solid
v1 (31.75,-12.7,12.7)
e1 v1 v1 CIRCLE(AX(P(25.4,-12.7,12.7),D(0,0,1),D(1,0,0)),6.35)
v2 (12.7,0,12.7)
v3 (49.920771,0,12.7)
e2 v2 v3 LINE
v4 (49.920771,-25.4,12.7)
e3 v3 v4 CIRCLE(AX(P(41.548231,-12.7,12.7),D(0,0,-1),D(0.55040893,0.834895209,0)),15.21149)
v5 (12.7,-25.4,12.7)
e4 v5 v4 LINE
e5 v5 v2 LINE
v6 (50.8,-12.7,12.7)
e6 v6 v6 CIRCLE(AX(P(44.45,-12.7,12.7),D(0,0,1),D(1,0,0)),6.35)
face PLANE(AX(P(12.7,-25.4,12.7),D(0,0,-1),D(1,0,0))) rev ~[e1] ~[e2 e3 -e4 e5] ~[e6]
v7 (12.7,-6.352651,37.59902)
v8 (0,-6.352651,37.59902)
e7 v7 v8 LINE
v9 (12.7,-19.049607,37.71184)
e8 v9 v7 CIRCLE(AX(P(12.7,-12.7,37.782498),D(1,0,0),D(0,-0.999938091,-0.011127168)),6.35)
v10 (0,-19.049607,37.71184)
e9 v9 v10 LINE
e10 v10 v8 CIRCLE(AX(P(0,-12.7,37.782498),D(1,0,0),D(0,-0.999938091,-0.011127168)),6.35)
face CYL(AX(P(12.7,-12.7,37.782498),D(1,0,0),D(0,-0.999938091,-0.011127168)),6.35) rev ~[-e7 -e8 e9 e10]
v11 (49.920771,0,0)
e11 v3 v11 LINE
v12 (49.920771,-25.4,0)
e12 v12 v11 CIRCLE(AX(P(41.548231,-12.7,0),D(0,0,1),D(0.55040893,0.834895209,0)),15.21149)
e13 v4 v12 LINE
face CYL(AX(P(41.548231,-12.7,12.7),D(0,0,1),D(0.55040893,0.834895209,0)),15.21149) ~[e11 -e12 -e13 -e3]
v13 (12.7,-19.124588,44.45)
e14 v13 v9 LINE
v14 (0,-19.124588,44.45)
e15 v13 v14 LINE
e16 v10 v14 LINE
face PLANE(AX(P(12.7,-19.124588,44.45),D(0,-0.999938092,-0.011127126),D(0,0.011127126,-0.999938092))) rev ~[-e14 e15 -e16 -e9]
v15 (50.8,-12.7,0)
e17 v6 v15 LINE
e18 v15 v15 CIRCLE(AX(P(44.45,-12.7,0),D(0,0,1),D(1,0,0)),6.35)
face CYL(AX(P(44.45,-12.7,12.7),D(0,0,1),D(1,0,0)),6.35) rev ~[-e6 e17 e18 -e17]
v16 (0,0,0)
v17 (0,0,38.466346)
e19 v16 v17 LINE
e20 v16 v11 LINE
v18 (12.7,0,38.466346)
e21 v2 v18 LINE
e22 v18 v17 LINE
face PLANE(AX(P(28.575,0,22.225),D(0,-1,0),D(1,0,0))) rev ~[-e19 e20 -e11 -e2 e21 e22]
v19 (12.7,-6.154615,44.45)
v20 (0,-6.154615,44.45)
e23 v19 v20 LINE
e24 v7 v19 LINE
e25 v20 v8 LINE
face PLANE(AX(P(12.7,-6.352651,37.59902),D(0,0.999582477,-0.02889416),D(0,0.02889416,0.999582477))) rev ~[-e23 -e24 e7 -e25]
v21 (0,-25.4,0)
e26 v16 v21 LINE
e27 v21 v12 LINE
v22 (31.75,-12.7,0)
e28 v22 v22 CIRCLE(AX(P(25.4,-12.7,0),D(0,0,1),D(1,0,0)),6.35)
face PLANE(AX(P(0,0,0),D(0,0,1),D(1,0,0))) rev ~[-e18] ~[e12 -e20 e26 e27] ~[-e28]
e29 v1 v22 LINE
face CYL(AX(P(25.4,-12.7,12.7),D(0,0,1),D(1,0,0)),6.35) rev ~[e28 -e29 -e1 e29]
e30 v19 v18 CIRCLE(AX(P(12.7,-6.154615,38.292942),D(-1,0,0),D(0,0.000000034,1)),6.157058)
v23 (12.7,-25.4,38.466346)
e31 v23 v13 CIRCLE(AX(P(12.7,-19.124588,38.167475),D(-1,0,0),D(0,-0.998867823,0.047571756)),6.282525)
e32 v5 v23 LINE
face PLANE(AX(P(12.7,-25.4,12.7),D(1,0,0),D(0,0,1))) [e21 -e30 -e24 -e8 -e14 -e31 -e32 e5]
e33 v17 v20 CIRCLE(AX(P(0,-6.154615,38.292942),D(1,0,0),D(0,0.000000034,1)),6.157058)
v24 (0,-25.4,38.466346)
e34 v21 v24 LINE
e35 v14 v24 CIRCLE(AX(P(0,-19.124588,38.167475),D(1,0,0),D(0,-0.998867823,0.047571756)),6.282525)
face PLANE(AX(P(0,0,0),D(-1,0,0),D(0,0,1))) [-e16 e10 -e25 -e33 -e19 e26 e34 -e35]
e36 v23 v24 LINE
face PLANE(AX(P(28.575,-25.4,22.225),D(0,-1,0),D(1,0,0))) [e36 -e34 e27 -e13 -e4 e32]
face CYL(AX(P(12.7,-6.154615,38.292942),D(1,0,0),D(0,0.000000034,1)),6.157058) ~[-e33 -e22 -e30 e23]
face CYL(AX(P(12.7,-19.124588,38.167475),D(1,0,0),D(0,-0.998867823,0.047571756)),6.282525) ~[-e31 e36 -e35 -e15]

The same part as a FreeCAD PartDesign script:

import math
import FreeCAD as App
import Part
import Sketcher
from FreeCAD import Vector
Q = App.Units.Quantity


def add_polygon(sketch, points):
    """Adds a closed chain of lines whose ends are joined by coincident constraints."""
    first, n = sketch.GeometryCount, len(points)
    for a, b in zip(points, points[1:] + points[:1]):
        sketch.addGeometry(Part.LineSegment(App.Vector(*a, 0), App.Vector(*b, 0)), False)
    for i in range(n):
        sketch.addConstraint(Sketcher.Constraint("Coincident", first + i, 2, first + (i + 1) % n, 1))

doc = App.newDocument("Part")
params = doc.addObject("Spreadsheet::Sheet", "Params")
for row, (alias, value) in enumerate([
    ("sketch1_width", "2.25 in"),
    ("sketch1_height", "1.75 in"),
    ("pad1_length", "1 in"),
    ("sketch2_width", "1.75 in"),
    ("sketch2_height", "1.25 in"),
    ("pocket1_length", "1 in"),
    ("sketch3_radius", "0.25 in"),
    ("pocket2_length", "1 in"),
    ("pocket3_length", "1 in"),
    ("pocket4_length", "1 in"),
    ("sketch6_diameter", "0.5 in"),
    ("pocket5_length", "1 in"),
    ("sketch7_height", "1 in"),
    ("pocket6_length", "1 in"),
], start=1):
    params.set(f"A{row}", alias)
    params.set(f"B{row}", "=" + value)
    params.setAlias(f"B{row}", alias)

body = doc.addObject("PartDesign::Body", "Body")

sketch1 = body.newObject("Sketcher::SketchObject", "Sketch")
sketch1.AttachmentSupport = (doc.getObject("XZ_Plane"), [""])
sketch1.MapMode = "FlatFace"
add_polygon(sketch1, [(0, 44), (0, 0), (57, 0), (57, 44)])
sketch1.addConstraint([
    Sketcher.Constraint("Vertical", 0),
    Sketcher.Constraint("Horizontal", 1),
    Sketcher.Constraint("Vertical", 2),
    Sketcher.Constraint("Horizontal", 3),
    Sketcher.Constraint("Coincident", 0, 2, -1, 1),
    Sketcher.Constraint("DistanceX", 1, 1, 1, 2, Q("2.25 in")),
    Sketcher.Constraint("DistanceY", 0, 2, 0, 1, Q("1.75 in")),
])
sketch1.setExpression("Constraints[9]", "Params.sketch1_width")
sketch1.setExpression("Constraints[10]", "Params.sketch1_height")
pad1 = body.newObject("PartDesign::Pad", "Pad")
pad1.Profile = sketch1
pad1.setExpression("Length", "Params.pad1_length")

sketch2 = body.newObject("Sketcher::SketchObject", "Sketch001")
sketch2.AttachmentSupport = (doc.getObject("XZ_Plane"), [""])
sketch2.MapMode = "FlatFace"
sketch2.AttachmentOffset = App.Placement(Vector(0, 0, 1 * 25.4), App.Rotation())
add_polygon(sketch2, [(13, 44), (13, 13), (57, 13), (57, 44)])
sketch2.addConstraint([
    Sketcher.Constraint("Vertical", 0),
    Sketcher.Constraint("Horizontal", 1),
    Sketcher.Constraint("Vertical", 2),
    Sketcher.Constraint("Horizontal", 3),
    Sketcher.Constraint("DistanceX", 1, 1, 1, 2, Q("1.75 in")),
    Sketcher.Constraint("DistanceY", 0, 2, 0, 1, Q("1.25 in")),
    Sketcher.Constraint("DistanceX", -1, 1, 0, 2, Q("0.5 in")),
    Sketcher.Constraint("DistanceY", -1, 1, 0, 2, Q("0.5 in")),
])
sketch2.setExpression("Constraints[8]", "Params.sketch2_width")
sketch2.setExpression("Constraints[9]", "Params.sketch2_height")
pocket1 = body.newObject("PartDesign::Pocket", "Pocket")
pocket1.Profile = sketch2
pocket1.setExpression("Length", "Params.pocket1_length")

sketch3 = body.newObject("Sketcher::SketchObject", "Sketch002")
sketch3.AttachmentSupport = (doc.getObject("YZ_Plane"), [""])
sketch3.MapMode = "FlatFace"
sketch3.AttachmentOffset = App.Placement(Vector(0, 0, 0.5 * 25.4), App.Rotation())
sketch3.addGeometry([
    Part.LineSegment(Vector(-6, 38, 0), Vector(-6, 44, 0)),
    Part.LineSegment(Vector(-6, 44, 0), Vector(-19, 44, 0)),
    Part.LineSegment(Vector(-19, 44, 0), Vector(-19, 38, 0)),
    Part.ArcOfCircle(Part.Circle(Vector(-13, 38, 0), Vector(0, 0, 1), 6), math.radians(-179), math.radians(-2)),
], False)
sketch3.addConstraint([
    Sketcher.Constraint("Coincident", 0, 2, 1, 1),
    Sketcher.Constraint("Coincident", 1, 2, 2, 1),
    Sketcher.Constraint("Tangent", 2, 2, 3, 1),
    Sketcher.Constraint("Tangent", 3, 2, 0, 1),
    Sketcher.Constraint("Horizontal", 1),
    Sketcher.Constraint("Radius", 3, Q("0.25 in")),
    Sketcher.Constraint("DistanceX", 3, 3, -1, 1, Q("0.5 in")),
    Sketcher.Constraint("DistanceY", -1, 1, 0, 2, Q("1.75 in")),
    Sketcher.Constraint("DistanceY", -1, 1, 3, 3, Q("1.4874999 in")),
    Sketcher.Constraint("Distance", 0, 6.853842),
    Sketcher.Constraint("DistanceX", 1, 2, 1, 1, 12.969973),
])
sketch3.setExpression("Constraints[5]", "Params.sketch3_radius")
pocket2 = body.newObject("PartDesign::Pocket", "Pocket001")
pocket2.Profile = sketch3
pocket2.setExpression("Length", "Params.pocket2_length")

sketch4 = body.newObject("Sketcher::SketchObject", "Sketch003")
sketch4.AttachmentSupport = (doc.getObject("YZ_Plane"), [""])
sketch4.MapMode = "FlatFace"
sketch4.AttachmentOffset = App.Placement(Vector(0, 0, 0.5 * 25.4), App.Rotation())
sketch4.addGeometry([
    Part.ArcOfCircle(Part.Circle(Vector(-19.124588, 38.167475, 0), Vector(0, 0, 1), 6.282525), math.radians(89.999998), math.radians(177.27331)),
    Part.LineSegment(Vector(-19.124588, 44.45, 0), Vector(-25.4, 44.45, 0)),
    Part.LineSegment(Vector(-25.4, 44.45, 0), Vector(-25.4, 38.466346, 0)),
], False)
sketch4.addConstraint([
    Sketcher.Constraint("Tangent", 0, 1, 1, 1),
    Sketcher.Constraint("Coincident", 1, 2, 2, 1),
    Sketcher.Constraint("Coincident", 2, 2, 0, 2),
    Sketcher.Constraint("Horizontal", 1),
    Sketcher.Constraint("Vertical", 2),
    Sketcher.Constraint("DistanceX", 1, 2, -1, 1, Q("1 in")),
    Sketcher.Constraint("DistanceY", -1, 1, 0, 1, Q("1.75 in")),
    Sketcher.Constraint("Radius", 0, 6.282525),
    Sketcher.Constraint("DistanceX", 1, 2, 1, 1, 6.275412),
])
pocket3 = body.newObject("PartDesign::Pocket", "Pocket002")
pocket3.Profile = sketch4
pocket3.setExpression("Length", "Params.pocket3_length")

sketch5 = body.newObject("Sketcher::SketchObject", "Sketch004")
sketch5.AttachmentSupport = (doc.getObject("YZ_Plane"), [""])
sketch5.MapMode = "FlatFace"
sketch5.AttachmentOffset = App.Placement(Vector(0, 0, 0.5 * 25.4), App.Rotation())
sketch5.addGeometry([
    Part.ArcOfCircle(Part.Circle(Vector(-6.154615, 38.292942, 0), Vector(0, 0, 1), 6.157058), math.radians(1.613856), math.radians(89.999998)),
    Part.LineSegment(Vector(0, 38.466346, 0), Vector(0, 44.45, 0)),
    Part.LineSegment(Vector(0, 44.45, 0), Vector(-6.154615, 44.45, 0)),
], False)
sketch5.addConstraint([
    Sketcher.Constraint("Coincident", 0, 1, 1, 1),
    Sketcher.Constraint("Coincident", 1, 2, 2, 1),
    Sketcher.Constraint("Coincident", 2, 2, 0, 2),
    Sketcher.Constraint("Vertical", 1),
    Sketcher.Constraint("Horizontal", 2),
    Sketcher.Constraint("PointOnObject", 0, 1, -2),
    Sketcher.Constraint("DistanceY", -1, 1, 1, 2, Q("1.75 in")),
    Sketcher.Constraint("Radius", 0, 6.157058),
    Sketcher.Constraint("DistanceX", 2, 2, 2, 1, 6.154615),
    Sketcher.Constraint("DistanceY", 1, 1, 1, 2, 5.983654),
])
pocket4 = body.newObject("PartDesign::Pocket", "Pocket003")
pocket4.Profile = sketch5
pocket4.setExpression("Length", "Params.pocket4_length")

sketch6 = body.newObject("Sketcher::SketchObject", "Sketch005")
sketch6.AttachmentSupport = (doc.getObject("XY_Plane"), [""])
sketch6.MapMode = "FlatFace"
sketch6.AttachmentOffset = App.Placement(Vector(0, 0, 0.5 * 25.4), App.Rotation())
sketch6.addGeometry([
    Part.Circle(Vector(44, -13, 0), Vector(0, 0, 1), 6),
    Part.Circle(Vector(25, -13, 0), Vector(0, 0, 1), 6),
], False)
sketch6.addConstraint([
    Sketcher.Constraint("Equal", 0, 1),
    Sketcher.Constraint("Horizontal", 0, 3, 1, 3),
    Sketcher.Constraint("Diameter", 0, Q("0.5 in")),
    Sketcher.Constraint("DistanceX", -1, 1, 1, 3, Q("1 in")),
    Sketcher.Constraint("DistanceY", 0, 3, -1, 1, Q("0.5 in")),
    Sketcher.Constraint("DistanceX", -1, 1, 0, 3, Q("1.75 in")),
])
sketch6.setExpression("Constraints[2]", "Params.sketch6_diameter")
pocket5 = body.newObject("PartDesign::Pocket", "Pocket004")
pocket5.Profile = sketch6
pocket5.setExpression("Length", "Params.pocket5_length")

sketch7 = body.newObject("Sketcher::SketchObject", "Sketch006")
sketch7.AttachmentSupport = (doc.getObject("XY_Plane"), [""])
sketch7.MapMode = "FlatFace"
sketch7.AttachmentOffset = App.Placement(Vector(0, 0, 0.5 * 25.4), App.Rotation())
sketch7.addGeometry([
    Part.ArcOfCircle(Part.Circle(Vector(42, -13, 0), Vector(0, 0, 1), 15), math.radians(-57), math.radians(57)),
    Part.LineSegment(Vector(50, -25, 0), Vector(57, -25, 0)),
    Part.LineSegment(Vector(57, -25, 0), Vector(57, 0, 0)),
    Part.LineSegment(Vector(57, 0, 0), Vector(50, 0, 0)),
], False)
sketch7.addConstraint([
    Sketcher.Constraint("Coincident", 0, 1, 1, 1),
    Sketcher.Constraint("Coincident", 1, 2, 2, 1),
    Sketcher.Constraint("Coincident", 2, 2, 3, 1),
    Sketcher.Constraint("Coincident", 3, 2, 0, 2),
    Sketcher.Constraint("Horizontal", 1),
    Sketcher.Constraint("Vertical", 2),
    Sketcher.Constraint("Horizontal", 3),
    Sketcher.Constraint("PointOnObject", 2, 2, -1),
    Sketcher.Constraint("Vertical", 0, 1, 3, 2),
    Sketcher.Constraint("DistanceY", 2, 1, 2, 2, Q("1 in")),
    Sketcher.Constraint("DistanceX", -1, 1, 1, 2, Q("2.25 in")),
    Sketcher.Constraint("Radius", 0, 15.21149),
    Sketcher.Constraint("DistanceX", 1, 1, 1, 2, 7.229229),
])
sketch7.setExpression("Constraints[9]", "Params.sketch7_height")
pocket6 = body.newObject("PartDesign::Pocket", "Pocket005")
pocket6.Profile = sketch7
pocket6.setExpression("Length", "Params.pocket6_length")

doc.recompute()
